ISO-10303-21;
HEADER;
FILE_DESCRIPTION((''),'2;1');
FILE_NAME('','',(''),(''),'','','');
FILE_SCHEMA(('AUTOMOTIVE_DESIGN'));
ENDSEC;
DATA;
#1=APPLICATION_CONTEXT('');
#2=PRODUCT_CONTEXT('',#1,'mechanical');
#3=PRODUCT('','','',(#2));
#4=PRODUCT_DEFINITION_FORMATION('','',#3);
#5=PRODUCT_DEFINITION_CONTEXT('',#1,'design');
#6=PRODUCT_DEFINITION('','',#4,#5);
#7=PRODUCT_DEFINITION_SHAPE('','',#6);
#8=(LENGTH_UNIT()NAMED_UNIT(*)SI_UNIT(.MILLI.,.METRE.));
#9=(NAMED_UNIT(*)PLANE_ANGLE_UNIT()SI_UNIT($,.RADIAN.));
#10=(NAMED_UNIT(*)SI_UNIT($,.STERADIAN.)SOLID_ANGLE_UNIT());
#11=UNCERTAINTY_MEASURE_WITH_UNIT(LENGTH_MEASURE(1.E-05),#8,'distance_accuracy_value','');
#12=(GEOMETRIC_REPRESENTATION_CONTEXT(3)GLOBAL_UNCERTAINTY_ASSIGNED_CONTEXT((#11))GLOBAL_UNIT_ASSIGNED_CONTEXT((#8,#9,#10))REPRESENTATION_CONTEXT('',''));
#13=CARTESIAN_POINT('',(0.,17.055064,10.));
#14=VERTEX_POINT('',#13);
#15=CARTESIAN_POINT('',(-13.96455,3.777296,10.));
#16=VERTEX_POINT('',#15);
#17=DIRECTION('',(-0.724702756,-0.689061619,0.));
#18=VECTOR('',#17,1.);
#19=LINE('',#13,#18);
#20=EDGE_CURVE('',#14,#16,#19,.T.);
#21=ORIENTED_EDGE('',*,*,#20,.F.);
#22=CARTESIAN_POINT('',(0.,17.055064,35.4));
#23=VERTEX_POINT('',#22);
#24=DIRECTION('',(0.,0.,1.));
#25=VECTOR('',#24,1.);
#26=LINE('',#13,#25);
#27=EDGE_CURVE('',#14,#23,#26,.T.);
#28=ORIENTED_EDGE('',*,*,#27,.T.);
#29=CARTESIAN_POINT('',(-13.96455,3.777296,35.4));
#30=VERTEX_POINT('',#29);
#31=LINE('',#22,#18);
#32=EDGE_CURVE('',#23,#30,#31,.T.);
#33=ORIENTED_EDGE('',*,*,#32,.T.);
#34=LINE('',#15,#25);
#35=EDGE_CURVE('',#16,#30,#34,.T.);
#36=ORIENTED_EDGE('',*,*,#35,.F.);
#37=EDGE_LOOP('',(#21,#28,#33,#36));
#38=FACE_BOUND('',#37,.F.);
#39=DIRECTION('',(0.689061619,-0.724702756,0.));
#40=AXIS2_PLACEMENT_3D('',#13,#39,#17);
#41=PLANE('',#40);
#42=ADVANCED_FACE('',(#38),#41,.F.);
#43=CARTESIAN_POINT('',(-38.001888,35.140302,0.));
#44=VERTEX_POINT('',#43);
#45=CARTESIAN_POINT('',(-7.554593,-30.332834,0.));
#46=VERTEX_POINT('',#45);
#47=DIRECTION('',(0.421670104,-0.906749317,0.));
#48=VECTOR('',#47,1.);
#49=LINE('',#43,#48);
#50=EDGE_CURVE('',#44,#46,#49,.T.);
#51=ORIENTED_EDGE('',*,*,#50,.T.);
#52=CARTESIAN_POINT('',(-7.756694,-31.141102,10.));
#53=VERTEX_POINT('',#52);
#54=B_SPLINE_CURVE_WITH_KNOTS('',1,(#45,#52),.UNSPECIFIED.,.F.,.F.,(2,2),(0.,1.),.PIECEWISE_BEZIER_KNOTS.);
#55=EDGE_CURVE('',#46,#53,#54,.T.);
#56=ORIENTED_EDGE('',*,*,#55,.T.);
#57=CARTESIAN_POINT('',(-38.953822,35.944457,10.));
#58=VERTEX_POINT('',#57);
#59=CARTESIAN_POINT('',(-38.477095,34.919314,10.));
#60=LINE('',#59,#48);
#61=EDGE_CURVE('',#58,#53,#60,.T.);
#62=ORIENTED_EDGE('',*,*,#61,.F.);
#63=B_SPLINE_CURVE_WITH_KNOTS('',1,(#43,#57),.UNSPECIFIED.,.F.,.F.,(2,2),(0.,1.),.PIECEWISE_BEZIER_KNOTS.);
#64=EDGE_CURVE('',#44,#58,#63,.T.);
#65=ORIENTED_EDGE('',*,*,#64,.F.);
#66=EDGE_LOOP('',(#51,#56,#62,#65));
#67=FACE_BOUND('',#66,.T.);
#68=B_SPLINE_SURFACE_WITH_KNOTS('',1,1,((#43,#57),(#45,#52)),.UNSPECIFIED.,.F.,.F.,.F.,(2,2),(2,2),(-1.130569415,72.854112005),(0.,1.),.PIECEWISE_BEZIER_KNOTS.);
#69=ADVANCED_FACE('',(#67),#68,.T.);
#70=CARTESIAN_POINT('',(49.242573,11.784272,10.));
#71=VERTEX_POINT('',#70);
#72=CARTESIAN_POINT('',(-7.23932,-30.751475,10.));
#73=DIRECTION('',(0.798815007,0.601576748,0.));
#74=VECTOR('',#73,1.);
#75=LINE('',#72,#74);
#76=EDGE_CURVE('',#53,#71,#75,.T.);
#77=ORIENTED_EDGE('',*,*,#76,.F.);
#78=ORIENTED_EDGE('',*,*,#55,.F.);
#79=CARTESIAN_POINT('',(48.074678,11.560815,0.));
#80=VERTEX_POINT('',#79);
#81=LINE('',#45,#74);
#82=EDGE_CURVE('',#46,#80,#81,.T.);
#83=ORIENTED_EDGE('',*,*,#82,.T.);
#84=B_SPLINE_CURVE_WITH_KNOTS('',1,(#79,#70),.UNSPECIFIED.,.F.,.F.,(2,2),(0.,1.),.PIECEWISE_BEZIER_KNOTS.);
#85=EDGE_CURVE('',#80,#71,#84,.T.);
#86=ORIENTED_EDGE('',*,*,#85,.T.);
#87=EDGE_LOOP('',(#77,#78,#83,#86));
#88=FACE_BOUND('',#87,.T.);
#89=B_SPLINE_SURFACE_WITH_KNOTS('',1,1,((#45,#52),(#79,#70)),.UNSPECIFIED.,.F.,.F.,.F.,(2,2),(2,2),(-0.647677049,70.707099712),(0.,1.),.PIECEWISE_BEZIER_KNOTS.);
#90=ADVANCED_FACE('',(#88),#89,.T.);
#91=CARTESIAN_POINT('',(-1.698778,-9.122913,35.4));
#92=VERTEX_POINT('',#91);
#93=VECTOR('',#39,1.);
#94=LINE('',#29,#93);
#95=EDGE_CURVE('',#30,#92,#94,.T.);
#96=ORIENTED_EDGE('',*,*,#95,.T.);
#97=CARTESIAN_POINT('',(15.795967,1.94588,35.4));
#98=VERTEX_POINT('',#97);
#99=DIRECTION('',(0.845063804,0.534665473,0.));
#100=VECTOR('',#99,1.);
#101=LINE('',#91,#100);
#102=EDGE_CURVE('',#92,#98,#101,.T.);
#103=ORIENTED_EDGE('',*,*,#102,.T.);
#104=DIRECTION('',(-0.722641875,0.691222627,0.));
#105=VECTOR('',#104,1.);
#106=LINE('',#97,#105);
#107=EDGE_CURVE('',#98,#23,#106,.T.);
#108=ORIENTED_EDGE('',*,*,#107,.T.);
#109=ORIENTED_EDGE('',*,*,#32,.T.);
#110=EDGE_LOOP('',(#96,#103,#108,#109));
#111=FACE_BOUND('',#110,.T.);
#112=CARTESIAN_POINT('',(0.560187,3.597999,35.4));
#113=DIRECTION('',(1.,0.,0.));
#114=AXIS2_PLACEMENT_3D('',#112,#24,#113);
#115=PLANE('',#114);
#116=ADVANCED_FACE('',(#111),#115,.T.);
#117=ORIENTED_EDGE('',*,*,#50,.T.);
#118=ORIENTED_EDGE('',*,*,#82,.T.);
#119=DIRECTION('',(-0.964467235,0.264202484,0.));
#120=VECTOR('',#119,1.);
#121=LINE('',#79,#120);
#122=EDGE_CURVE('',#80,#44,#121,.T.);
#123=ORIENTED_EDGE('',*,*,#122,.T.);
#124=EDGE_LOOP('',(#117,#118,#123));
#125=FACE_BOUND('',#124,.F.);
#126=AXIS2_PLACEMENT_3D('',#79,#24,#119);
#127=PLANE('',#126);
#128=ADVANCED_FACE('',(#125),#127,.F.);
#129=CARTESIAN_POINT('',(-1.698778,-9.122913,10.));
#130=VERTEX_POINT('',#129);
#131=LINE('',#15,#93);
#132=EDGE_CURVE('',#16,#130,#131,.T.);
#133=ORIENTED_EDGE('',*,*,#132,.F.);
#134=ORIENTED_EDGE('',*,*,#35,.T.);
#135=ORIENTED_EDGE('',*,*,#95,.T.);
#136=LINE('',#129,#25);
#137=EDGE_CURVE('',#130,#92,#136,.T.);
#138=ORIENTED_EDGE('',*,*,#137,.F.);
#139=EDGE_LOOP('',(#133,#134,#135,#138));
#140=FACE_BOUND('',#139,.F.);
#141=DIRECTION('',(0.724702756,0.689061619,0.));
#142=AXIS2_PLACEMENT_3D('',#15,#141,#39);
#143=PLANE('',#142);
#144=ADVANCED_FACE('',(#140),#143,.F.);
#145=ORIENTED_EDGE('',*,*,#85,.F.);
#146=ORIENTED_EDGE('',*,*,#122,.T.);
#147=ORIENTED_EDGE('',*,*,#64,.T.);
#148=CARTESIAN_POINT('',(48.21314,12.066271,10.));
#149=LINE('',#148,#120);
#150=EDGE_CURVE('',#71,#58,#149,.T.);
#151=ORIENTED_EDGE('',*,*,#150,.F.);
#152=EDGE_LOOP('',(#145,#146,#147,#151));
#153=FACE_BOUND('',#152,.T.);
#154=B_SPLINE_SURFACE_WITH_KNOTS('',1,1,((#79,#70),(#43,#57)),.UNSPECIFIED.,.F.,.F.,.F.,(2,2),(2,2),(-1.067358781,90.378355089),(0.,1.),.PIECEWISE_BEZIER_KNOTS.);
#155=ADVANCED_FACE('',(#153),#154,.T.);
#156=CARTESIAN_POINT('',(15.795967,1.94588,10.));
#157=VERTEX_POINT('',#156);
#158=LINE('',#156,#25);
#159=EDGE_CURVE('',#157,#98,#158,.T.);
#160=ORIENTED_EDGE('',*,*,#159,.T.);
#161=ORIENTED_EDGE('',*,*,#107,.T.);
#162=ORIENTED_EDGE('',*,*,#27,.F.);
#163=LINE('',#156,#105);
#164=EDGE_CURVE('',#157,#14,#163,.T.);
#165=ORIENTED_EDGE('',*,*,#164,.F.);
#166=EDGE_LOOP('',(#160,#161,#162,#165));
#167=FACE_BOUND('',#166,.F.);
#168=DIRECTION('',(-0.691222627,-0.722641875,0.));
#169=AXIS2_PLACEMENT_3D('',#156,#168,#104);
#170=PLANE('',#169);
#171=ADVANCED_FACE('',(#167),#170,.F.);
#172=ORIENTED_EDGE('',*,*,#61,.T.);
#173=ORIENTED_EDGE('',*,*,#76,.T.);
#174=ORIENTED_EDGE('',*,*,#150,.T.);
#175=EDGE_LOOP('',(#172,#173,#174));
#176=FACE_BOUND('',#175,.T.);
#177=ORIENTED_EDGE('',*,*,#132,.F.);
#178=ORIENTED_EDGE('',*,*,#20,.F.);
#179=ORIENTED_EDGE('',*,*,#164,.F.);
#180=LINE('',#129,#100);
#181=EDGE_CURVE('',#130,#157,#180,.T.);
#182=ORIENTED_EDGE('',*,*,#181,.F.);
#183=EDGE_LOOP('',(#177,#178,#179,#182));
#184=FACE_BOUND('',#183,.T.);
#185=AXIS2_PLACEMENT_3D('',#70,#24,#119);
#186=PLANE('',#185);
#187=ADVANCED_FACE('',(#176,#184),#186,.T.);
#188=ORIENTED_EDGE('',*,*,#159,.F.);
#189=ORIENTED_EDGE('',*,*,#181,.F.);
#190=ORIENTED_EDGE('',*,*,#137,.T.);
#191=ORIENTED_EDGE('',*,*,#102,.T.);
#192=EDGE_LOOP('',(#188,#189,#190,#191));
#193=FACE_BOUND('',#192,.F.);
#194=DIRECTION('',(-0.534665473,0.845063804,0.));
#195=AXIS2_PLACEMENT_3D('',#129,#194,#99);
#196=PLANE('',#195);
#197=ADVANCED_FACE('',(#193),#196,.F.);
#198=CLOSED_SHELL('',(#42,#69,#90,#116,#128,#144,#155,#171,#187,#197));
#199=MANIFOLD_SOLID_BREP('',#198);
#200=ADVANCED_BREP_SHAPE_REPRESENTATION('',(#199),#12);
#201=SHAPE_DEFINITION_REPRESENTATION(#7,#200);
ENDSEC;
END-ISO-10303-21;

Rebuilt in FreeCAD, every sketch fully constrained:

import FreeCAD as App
import Part
import Sketcher
Q = App.Units.Quantity

doc = App.newDocument("Part")
body = doc.addObject("PartDesign::Body", "Body")

# Sketch on XY plane
sketch1 = body.newObject("Sketcher::SketchObject", "Sketch")
sketch1.AttachmentSupport = (doc.getObject("XY_Plane"), [""])
sketch1.MapMode = "FlatFace"
sketch1.addGeometry(Part.LineSegment(App.Vector(48, 12, 0), App.Vector(-38, 35, 0)), False)
sketch1.addGeometry(Part.LineSegment(App.Vector(-38, 35, 0), App.Vector(-8, -30, 0)), False)
sketch1.addGeometry(Part.LineSegment(App.Vector(-8, -30, 0), App.Vector(48, 12, 0)), False)
sketch1.addConstraint(Sketcher.Constraint("Coincident", 0, 2, 1, 1))
sketch1.addConstraint(Sketcher.Constraint("Coincident", 1, 2, 2, 1))
sketch1.addConstraint(Sketcher.Constraint("Coincident", 2, 2, 0, 1))
sketch1.addConstraint(Sketcher.Constraint("Distance", 2, Q("69.639741 mm")))
sketch1.addConstraint(Sketcher.Constraint("DistanceX", 1, 2, 2, 2, Q("55.62927 mm")))
sketch1.addConstraint(Sketcher.Constraint("Distance", 0, Q("89.247786 mm")))
sketch1.addConstraint(Sketcher.Constraint("Distance", 1, Q("72.206435 mm")))
sketch1.addConstraint(Sketcher.Constraint("DistanceX", 0, 2, -1, 1, Q("38.001888 mm")))
sketch1.addConstraint(Sketcher.Constraint("DistanceY", -1, 1, 0, 2, Q("35.140302 mm")))
pad1 = body.newObject("PartDesign::Pad", "Pad")
pad1.Profile = sketch1
pad1.Length = 10
pad1.TaperAngle = 3

# Sketch on XY plane
sketch2 = body.newObject("Sketcher::SketchObject", "Sketch001")
sketch2.AttachmentSupport = (doc.getObject("XY_Plane"), [""])
sketch2.MapMode = "FlatFace"
sketch2.AttachmentOffset = App.Placement(App.Vector(0, 0, 10), App.Rotation())
sketch2.addGeometry(Part.LineSegment(App.Vector(16, 2, 0), App.Vector(0, 17, 0)), False)
sketch2.addGeometry(Part.LineSegment(App.Vector(0, 17, 0), App.Vector(-14, 4, 0)), False)
sketch2.addGeometry(Part.LineSegment(App.Vector(-14, 4, 0), App.Vector(-2, -9, 0)), False)
sketch2.addGeometry(Part.LineSegment(App.Vector(-2, -9, 0), App.Vector(16, 2, 0)), False)
sketch2.addConstraint(Sketcher.Constraint("Coincident", 0, 2, 1, 1))
sketch2.addConstraint(Sketcher.Constraint("Coincident", 1, 2, 2, 1))
sketch2.addConstraint(Sketcher.Constraint("Coincident", 2, 2, 3, 1))
sketch2.addConstraint(Sketcher.Constraint("Coincident", 3, 2, 0, 1))
sketch2.addConstraint(Sketcher.Constraint("PointOnObject", 0, 2, -2))
sketch2.addConstraint(Sketcher.Constraint("Perpendicular", 1, 2))
sketch2.addConstraint(Sketcher.Constraint("Distance", 1, Q("19.269348 mm")))
sketch2.addConstraint(Sketcher.Constraint("Distance", 2, Q("17.80069 mm")))
sketch2.addConstraint(Sketcher.Constraint("DistanceX", 1, 2, -1, 1, Q("13.96455 mm")))
sketch2.addConstraint(Sketcher.Constraint("DistanceY", -1, 1, 3, 2, Q("1.94588 mm")))
sketch2.addConstraint(Sketcher.Constraint("Distance", 0, Q("21.858637 mm")))
sketch2.addConstraint(Sketcher.Constraint("Distance", 3, Q("20.702276 mm")))
pad2 = body.newObject("PartDesign::Pad", "Pad001")
pad2.Profile = sketch2
pad2.Length = 25.4

doc.recompute()
